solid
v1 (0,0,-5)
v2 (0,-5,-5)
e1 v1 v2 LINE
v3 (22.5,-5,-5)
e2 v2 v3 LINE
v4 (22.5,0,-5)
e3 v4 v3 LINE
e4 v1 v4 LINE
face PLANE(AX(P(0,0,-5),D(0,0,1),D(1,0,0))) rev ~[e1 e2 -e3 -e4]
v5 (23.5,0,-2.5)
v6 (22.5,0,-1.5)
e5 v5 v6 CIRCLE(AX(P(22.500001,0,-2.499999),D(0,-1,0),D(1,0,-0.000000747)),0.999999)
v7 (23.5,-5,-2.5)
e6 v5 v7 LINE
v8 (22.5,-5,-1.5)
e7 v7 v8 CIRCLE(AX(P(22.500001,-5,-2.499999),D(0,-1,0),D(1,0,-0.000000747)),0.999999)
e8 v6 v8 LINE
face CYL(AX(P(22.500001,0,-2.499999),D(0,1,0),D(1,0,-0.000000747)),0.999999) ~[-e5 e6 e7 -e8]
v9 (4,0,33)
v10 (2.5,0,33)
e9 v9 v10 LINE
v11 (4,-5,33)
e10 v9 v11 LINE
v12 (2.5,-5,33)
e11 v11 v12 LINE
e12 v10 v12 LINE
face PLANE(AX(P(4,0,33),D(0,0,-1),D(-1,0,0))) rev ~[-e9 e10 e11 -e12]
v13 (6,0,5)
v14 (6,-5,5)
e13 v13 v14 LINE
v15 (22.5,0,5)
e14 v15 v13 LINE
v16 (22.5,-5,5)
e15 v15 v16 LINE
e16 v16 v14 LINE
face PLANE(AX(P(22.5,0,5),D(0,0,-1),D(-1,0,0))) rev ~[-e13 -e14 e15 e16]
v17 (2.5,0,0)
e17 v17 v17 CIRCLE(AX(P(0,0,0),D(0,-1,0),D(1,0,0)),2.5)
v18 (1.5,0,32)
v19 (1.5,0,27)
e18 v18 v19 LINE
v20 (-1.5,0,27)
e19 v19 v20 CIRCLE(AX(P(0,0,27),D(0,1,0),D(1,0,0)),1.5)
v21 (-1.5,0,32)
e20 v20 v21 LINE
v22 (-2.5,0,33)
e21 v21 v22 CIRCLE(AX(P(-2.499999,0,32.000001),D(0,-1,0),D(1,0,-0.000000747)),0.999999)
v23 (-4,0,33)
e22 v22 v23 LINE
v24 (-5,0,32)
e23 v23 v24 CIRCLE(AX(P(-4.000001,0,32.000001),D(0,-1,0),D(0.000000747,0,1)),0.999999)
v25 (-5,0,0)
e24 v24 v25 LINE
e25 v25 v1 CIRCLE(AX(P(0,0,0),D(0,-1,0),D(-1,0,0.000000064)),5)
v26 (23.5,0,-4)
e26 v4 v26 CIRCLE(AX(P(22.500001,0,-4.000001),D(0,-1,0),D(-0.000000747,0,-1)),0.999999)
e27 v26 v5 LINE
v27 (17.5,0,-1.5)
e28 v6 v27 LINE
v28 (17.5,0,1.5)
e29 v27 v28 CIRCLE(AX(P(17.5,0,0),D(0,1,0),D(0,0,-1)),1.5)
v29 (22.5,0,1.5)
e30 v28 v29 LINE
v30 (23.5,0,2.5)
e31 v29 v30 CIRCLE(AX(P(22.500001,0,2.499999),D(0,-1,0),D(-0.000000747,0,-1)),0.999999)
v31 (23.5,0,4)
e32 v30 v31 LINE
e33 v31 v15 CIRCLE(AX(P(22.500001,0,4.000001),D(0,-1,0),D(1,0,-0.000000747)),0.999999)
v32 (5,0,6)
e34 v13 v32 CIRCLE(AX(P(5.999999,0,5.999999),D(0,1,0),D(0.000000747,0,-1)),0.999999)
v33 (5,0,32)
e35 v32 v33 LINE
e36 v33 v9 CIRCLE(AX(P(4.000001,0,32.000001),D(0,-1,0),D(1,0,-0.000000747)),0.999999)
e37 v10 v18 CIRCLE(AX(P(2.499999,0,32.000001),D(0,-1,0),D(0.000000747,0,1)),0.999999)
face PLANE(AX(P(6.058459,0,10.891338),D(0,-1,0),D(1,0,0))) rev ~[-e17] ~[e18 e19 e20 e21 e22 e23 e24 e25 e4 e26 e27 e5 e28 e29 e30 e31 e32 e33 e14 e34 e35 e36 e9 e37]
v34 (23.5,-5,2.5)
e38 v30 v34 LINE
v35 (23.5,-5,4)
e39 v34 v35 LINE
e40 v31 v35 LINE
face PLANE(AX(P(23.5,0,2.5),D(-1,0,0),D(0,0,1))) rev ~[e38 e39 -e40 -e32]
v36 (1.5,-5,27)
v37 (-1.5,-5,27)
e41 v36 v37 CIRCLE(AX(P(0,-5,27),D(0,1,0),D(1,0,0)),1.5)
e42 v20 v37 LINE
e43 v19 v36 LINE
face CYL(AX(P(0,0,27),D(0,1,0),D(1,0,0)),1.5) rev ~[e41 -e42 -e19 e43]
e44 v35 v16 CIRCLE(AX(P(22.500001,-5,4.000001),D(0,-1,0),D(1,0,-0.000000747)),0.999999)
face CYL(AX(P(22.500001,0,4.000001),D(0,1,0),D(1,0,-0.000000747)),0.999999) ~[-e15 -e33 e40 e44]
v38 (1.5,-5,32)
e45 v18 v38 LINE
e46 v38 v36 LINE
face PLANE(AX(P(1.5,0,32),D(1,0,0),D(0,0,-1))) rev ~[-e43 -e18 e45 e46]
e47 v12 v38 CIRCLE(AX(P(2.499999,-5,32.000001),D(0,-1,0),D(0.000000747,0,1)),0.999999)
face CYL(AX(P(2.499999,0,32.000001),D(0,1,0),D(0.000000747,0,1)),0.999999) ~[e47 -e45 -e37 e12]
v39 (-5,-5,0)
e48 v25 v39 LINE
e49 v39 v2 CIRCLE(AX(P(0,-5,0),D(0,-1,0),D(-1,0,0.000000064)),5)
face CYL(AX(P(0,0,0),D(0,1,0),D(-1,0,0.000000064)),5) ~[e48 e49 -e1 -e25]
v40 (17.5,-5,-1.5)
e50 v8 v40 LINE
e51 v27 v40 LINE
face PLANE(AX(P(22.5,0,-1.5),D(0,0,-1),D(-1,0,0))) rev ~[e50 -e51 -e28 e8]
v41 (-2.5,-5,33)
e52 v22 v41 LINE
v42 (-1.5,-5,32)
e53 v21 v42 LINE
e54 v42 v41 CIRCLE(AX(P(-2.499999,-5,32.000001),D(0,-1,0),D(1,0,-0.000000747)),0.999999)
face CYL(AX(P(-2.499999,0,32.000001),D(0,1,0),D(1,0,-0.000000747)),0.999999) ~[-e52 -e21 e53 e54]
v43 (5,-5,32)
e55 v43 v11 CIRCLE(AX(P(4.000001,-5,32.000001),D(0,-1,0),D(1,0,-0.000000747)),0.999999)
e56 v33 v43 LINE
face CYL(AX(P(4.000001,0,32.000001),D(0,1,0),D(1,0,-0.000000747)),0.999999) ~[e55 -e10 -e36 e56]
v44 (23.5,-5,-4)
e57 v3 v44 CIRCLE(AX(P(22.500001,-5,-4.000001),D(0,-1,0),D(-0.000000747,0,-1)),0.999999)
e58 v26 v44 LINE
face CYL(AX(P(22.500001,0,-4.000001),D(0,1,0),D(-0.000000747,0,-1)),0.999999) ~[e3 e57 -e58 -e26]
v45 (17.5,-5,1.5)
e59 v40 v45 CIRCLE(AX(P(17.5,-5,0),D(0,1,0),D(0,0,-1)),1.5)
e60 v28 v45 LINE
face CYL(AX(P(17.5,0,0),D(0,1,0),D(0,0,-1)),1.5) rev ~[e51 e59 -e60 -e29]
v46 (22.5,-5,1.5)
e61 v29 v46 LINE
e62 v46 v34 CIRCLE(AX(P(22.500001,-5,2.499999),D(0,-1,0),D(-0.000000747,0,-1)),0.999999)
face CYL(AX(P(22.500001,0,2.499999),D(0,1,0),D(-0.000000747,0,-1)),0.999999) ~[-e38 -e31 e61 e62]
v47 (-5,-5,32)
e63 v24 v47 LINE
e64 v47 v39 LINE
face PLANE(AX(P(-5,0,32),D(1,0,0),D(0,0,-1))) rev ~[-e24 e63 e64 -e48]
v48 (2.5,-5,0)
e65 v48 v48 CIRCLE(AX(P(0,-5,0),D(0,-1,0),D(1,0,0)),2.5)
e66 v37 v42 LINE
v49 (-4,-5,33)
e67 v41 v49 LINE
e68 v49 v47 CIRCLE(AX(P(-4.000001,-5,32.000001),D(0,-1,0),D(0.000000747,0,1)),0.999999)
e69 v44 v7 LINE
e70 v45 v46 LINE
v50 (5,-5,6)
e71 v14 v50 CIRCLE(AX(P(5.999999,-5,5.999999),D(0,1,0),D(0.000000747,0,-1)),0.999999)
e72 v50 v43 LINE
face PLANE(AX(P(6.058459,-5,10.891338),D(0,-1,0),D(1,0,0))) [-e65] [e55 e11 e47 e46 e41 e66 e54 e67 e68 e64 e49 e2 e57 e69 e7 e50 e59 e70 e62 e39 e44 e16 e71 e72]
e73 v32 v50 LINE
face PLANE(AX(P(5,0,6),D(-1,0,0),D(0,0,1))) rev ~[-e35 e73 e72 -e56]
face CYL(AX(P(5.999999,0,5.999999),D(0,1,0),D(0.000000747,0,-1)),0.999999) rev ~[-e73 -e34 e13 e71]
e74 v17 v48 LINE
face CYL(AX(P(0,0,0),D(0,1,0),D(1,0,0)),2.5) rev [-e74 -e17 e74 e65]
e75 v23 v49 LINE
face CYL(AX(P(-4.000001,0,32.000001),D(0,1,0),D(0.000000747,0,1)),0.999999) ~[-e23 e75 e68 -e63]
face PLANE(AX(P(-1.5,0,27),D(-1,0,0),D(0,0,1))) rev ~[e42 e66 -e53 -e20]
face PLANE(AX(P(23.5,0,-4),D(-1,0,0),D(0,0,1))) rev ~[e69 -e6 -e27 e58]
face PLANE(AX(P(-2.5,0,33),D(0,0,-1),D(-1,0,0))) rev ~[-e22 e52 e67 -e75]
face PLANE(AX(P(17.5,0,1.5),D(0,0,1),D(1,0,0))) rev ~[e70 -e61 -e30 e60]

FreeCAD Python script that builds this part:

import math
import FreeCAD as App
import Part
import Sketcher
from FreeCAD import Vector
Q = App.Units.Quantity

doc = App.newDocument("Part")
body = doc.addObject("PartDesign::Body", "Body")

# Sketch on XZ plane
sketch1 = doc.addObject("Sketcher::SketchObject", "Sketch")
body.addObject(sketch1)
sketch1.AttachmentSupport = (doc.XZ_Plane, [""])
sketch1.MapMode = "FlatFace"
sketch1.addGeometry(Part.LineSegment(Vector(-2.5, 33, 0), Vector(-4, 33, 0)), False)
sketch1.addGeometry(Part.ArcOfCircle(Part.Circle(Vector(-4, 32, 0), Vector(0, 0, 1), 1), math.radians(90), math.radians(180)), False)
sketch1.addGeometry(Part.LineSegment(Vector(-5, 32, 0), Vector(-5, 0, 0)), False)
sketch1.addGeometry(Part.ArcOfCircle(Part.Circle(Vector(0, 0, 0), Vector(0, 0, 1), 5), math.radians(180), math.radians(270)), False)
sketch1.addGeometry(Part.LineSegment(Vector(0, -5, 0), Vector(22.5, -5, 0)), False)
sketch1.addGeometry(Part.ArcOfCircle(Part.Circle(Vector(22.5, -4, 0), Vector(0, 0, 1), 1), math.radians(-90), math.radians(0)), False)
sketch1.addGeometry(Part.LineSegment(Vector(23.5, -4, 0), Vector(23.5, -2.5, 0)), False)
sketch1.addGeometry(Part.ArcOfCircle(Part.Circle(Vector(22.5, -2.5, 0), Vector(0, 0, 1), 1), math.radians(0), math.radians(90)), False)
sketch1.addGeometry(Part.LineSegment(Vector(22.5, -1.5, 0), Vector(17.5, -1.5, 0)), False)
sketch1.addGeometry(Part.ArcOfCircle(Part.Circle(Vector(17.5, 0, 0), Vector(0, 0, 1), 1.5), math.radians(90), math.radians(270)), False)
sketch1.addGeometry(Part.LineSegment(Vector(17.5, 1.5, 0), Vector(22.5, 1.5, 0)), False)
sketch1.addGeometry(Part.ArcOfCircle(Part.Circle(Vector(22.5, 2.5, 0), Vector(0, 0, 1), 1), math.radians(-90), math.radians(0)), False)
sketch1.addGeometry(Part.LineSegment(Vector(23.5, 2.5, 0), Vector(23.5, 4, 0)), False)
sketch1.addGeometry(Part.ArcOfCircle(Part.Circle(Vector(22.5, 4, 0), Vector(0, 0, 1), 1), math.radians(0), math.radians(90)), False)
sketch1.addGeometry(Part.LineSegment(Vector(22.5, 5, 0), Vector(6, 5, 0)), False)
sketch1.addGeometry(Part.ArcOfCircle(Part.Circle(Vector(6, 6, 0), Vector(0, 0, 1), 1), math.radians(180), math.radians(270)), False)
sketch1.addGeometry(Part.LineSegment(Vector(5, 6, 0), Vector(5, 32, 0)), False)
sketch1.addGeometry(Part.ArcOfCircle(Part.Circle(Vector(4, 32, 0), Vector(0, 0, 1), 1), math.radians(0), math.radians(90)), False)
sketch1.addGeometry(Part.LineSegment(Vector(4, 33, 0), Vector(2.5, 33, 0)), False)
sketch1.addGeometry(Part.ArcOfCircle(Part.Circle(Vector(2.5, 32, 0), Vector(0, 0, 1), 1), math.radians(90), math.radians(180)), False)
sketch1.addGeometry(Part.LineSegment(Vector(1.5, 32, 0), Vector(1.5, 27, 0)), False)
sketch1.addGeometry(Part.ArcOfCircle(Part.Circle(Vector(0, 27, 0), Vector(0, 0, 1), 1.5), math.radians(180), math.radians(360)), False)
sketch1.addGeometry(Part.LineSegment(Vector(-1.5, 27, 0), Vector(-1.5, 32, 0)), False)
sketch1.addGeometry(Part.ArcOfCircle(Part.Circle(Vector(-2.5, 32, 0), Vector(0, 0, 1), 1), math.radians(0), math.radians(90)), False)
sketch1.addGeometry(Part.Circle(Vector(0, 0, 0), Vector(0, 0, 1), 2.5), False)
sketch1.addConstraint(Sketcher.Constraint("Tangent", 0, 2, 1, 1))
sketch1.addConstraint(Sketcher.Constraint("Tangent", 1, 2, 2, 1))
sketch1.addConstraint(Sketcher.Constraint("Tangent", 2, 2, 3, 1))
sketch1.addConstraint(Sketcher.Constraint("Tangent", 3, 2, 4, 1))
sketch1.addConstraint(Sketcher.Constraint("Tangent", 4, 2, 5, 1))
sketch1.addConstraint(Sketcher.Constraint("Tangent", 5, 2, 6, 1))
sketch1.addConstraint(Sketcher.Constraint("Tangent", 6, 2, 7, 1))
sketch1.addConstraint(Sketcher.Constraint("Tangent", 7, 2, 8, 1))
sketch1.addConstraint(Sketcher.Constraint("Tangent", 8, 2, 9, 2))
sketch1.addConstraint(Sketcher.Constraint("Tangent", 9, 1, 10, 1))
sketch1.addConstraint(Sketcher.Constraint("Tangent", 10, 2, 11, 1))
sketch1.addConstraint(Sketcher.Constraint("Tangent", 11, 2, 12, 1))
sketch1.addConstraint(Sketcher.Constraint("Tangent", 12, 2, 13, 1))
sketch1.addConstraint(Sketcher.Constraint("Tangent", 13, 2, 14, 1))
sketch1.addConstraint(Sketcher.Constraint("Tangent", 14, 2, 15, 2))
sketch1.addConstraint(Sketcher.Constraint("Tangent", 15, 1, 16, 1))
sketch1.addConstraint(Sketcher.Constraint("Tangent", 16, 2, 17, 1))
sketch1.addConstraint(Sketcher.Constraint("Tangent", 17, 2, 18, 1))
sketch1.addConstraint(Sketcher.Constraint("Tangent", 18, 2, 19, 1))
sketch1.addConstraint(Sketcher.Constraint("Tangent", 19, 2, 20, 1))
sketch1.addConstraint(Sketcher.Constraint("Tangent", 20, 2, 21, 2))
sketch1.addConstraint(Sketcher.Constraint("Tangent", 21, 1, 22, 1))
sketch1.addConstraint(Sketcher.Constraint("Tangent", 22, 2, 23, 1))
sketch1.addConstraint(Sketcher.Constraint("Tangent", 23, 2, 0, 1))
sketch1.addConstraint(Sketcher.Constraint("Horizontal", 0))
sketch1.addConstraint(Sketcher.Constraint("Vertical", 2))
sketch1.addConstraint(Sketcher.Constraint("Horizontal", 4))
sketch1.addConstraint(Sketcher.Constraint("Vertical", 6))
sketch1.addConstraint(Sketcher.Constraint("Horizontal", 8))
sketch1.addConstraint(Sketcher.Constraint("Horizontal", 10))
sketch1.addConstraint(Sketcher.Constraint("Vertical", 12))
sketch1.addConstraint(Sketcher.Constraint("Horizontal", 14))
sketch1.addConstraint(Sketcher.Constraint("Vertical", 16))
sketch1.addConstraint(Sketcher.Constraint("Horizontal", 18))
sketch1.addConstraint(Sketcher.Constraint("Vertical", 20))
sketch1.addConstraint(Sketcher.Constraint("Vertical", 22))
sketch1.addConstraint(Sketcher.Constraint("Coincident", 3, 3, -1, 1))
sketch1.addConstraint(Sketcher.Constraint("Coincident", 24, 3, -1, 1))
sketch1.addConstraint(Sketcher.Constraint("Equal", 1, 5))
sketch1.addConstraint(Sketcher.Constraint("Equal", 5, 7))
sketch1.addConstraint(Sketcher.Constraint("Equal", 7, 11))
sketch1.addConstraint(Sketcher.Constraint("Equal", 11, 13))
sketch1.addConstraint(Sketcher.Constraint("Equal", 13, 15))
sketch1.addConstraint(Sketcher.Constraint("Equal", 15, 17))
sketch1.addConstraint(Sketcher.Constraint("Equal", 17, 19))
sketch1.addConstraint(Sketcher.Constraint("Equal", 9, 21))
sketch1.addConstraint(Sketcher.Constraint("Equal", 19, 23))
sketch1.addConstraint(Sketcher.Constraint("Symmetric", 1, 3, 17, 3, -2))
sketch1.addConstraint(Sketcher.Constraint("Symmetric", 7, 3, 11, 3, -1))
sketch1.addConstraint(Sketcher.Constraint("PointOnObject", 21, 3, -2))
sketch1.addConstraint(Sketcher.Constraint("Equal", 6, 12))
sketch1.addConstraint(Sketcher.Constraint("Equal", 10, 20))
sketch1.addConstraint(Sketcher.Constraint("Diameter", 24, Q("5 mm")))
sketch1.addConstraint(Sketcher.Constraint("Radius", 1, Q("0.999999 mm")))
sketch1.addConstraint(Sketcher.Constraint("Radius", 3, Q("5 mm")))
sketch1.addConstraint(Sketcher.Constraint("Radius", 9, Q("1.5 mm")))
sketch1.addConstraint(Sketcher.Constraint("DistanceX", 8, 2, 8, 1, Q("5 mm")))
sketch1.addConstraint(Sketcher.Constraint("DistanceY", 2, 2, 2, 1, Q("32 mm")))
sketch1.addConstraint(Sketcher.Constraint("DistanceX", 4, 1, 4, 2, Q("22.5 mm")))
pad1 = doc.addObject("PartDesign::Pad", "Pad")
body.addObject(pad1)
pad1.Profile = sketch1
pad1.Length = 5

doc.recompute()
